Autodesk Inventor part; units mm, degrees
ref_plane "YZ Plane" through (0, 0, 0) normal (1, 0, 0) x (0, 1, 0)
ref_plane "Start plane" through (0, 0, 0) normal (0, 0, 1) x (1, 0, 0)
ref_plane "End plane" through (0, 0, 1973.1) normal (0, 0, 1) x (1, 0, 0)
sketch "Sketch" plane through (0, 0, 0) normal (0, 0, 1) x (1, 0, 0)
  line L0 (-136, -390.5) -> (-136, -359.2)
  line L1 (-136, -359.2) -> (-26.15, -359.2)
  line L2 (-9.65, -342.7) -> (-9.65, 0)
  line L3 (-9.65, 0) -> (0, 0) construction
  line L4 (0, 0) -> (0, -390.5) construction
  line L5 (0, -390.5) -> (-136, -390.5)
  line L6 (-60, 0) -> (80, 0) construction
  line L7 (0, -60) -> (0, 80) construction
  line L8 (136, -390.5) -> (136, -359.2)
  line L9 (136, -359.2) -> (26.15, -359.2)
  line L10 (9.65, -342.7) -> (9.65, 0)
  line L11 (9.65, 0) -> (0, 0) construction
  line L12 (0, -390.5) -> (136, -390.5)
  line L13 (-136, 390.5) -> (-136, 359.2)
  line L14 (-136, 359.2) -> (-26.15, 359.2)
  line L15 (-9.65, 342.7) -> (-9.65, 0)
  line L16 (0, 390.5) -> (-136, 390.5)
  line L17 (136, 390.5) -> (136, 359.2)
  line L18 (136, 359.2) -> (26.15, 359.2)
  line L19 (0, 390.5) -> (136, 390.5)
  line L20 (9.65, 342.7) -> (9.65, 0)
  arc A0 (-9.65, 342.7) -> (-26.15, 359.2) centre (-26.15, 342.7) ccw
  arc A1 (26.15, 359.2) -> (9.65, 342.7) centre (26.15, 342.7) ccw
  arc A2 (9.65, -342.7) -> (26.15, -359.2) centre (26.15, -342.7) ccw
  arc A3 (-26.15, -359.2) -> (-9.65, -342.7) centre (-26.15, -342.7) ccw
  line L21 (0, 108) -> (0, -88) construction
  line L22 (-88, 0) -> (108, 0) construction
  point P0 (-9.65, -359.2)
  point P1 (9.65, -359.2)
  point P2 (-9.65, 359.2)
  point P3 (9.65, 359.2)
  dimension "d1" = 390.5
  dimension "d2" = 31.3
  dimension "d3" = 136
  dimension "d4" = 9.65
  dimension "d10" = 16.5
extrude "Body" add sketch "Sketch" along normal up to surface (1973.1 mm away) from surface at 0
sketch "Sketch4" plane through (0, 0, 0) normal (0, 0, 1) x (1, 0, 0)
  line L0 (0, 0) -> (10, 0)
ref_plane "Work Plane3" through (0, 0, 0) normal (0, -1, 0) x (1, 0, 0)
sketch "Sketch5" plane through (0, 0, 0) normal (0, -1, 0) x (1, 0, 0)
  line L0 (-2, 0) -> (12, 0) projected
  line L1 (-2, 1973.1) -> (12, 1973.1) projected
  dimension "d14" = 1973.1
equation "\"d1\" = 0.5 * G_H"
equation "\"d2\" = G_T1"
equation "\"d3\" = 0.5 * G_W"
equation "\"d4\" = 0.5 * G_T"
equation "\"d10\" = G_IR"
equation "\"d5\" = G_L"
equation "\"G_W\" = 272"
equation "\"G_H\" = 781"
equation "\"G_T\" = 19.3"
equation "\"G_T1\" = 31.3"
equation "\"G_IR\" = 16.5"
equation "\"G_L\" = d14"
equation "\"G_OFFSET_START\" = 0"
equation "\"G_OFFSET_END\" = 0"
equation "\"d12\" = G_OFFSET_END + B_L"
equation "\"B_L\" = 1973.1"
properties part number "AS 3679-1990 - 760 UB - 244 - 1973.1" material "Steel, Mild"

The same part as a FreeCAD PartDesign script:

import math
import FreeCAD as App
import Part
import Sketcher
from FreeCAD import Vector
Q = App.Units.Quantity

doc = App.newDocument("Part")
body = doc.addObject("PartDesign::Body", "Body")

# Sketch on XY plane
sketch1 = doc.addObject("Sketcher::SketchObject", "Sketch")
body.addObject(sketch1)
sketch1.AttachmentSupport = (doc.XY_Plane, [""])
sketch1.MapMode = "FlatFace"
sketch1.addGeometry([
    Part.LineSegment(Vector(-136, -359.2, 0), Vector(-136, -390.5, 0)),  # 0
    Part.LineSegment(Vector(-136, -390.5, 0), Vector(136, -390.5, 0)),  # 1
    Part.LineSegment(Vector(136, -390.5, 0), Vector(136, -359.2, 0)),  # 2
    Part.LineSegment(Vector(136, -359.2, 0), Vector(26.15, -359.2, 0)),  # 3
    Part.ArcOfCircle(Part.Circle(Vector(26.15, -342.7, 0), Vector(0, 0, 1), 16.5), math.radians(180), math.radians(270)),  # 4
    Part.LineSegment(Vector(9.65, -342.7, 0), Vector(9.65, 342.7, 0)),  # 5
    Part.ArcOfCircle(Part.Circle(Vector(26.15, 342.7, 0), Vector(0, 0, 1), 16.5), math.radians(90), math.radians(180)),  # 6
    Part.LineSegment(Vector(26.15, 359.2, 0), Vector(136, 359.2, 0)),  # 7
    Part.LineSegment(Vector(136, 359.2, 0), Vector(136, 390.5, 0)),  # 8
    Part.LineSegment(Vector(136, 390.5, 0), Vector(-136, 390.5, 0)),  # 9
    Part.LineSegment(Vector(-136, 390.5, 0), Vector(-136, 359.2, 0)),  # 10
    Part.LineSegment(Vector(-136, 359.2, 0), Vector(-26.15, 359.2, 0)),  # 11
    Part.ArcOfCircle(Part.Circle(Vector(-26.15, 342.7, 0), Vector(0, 0, 1), 16.5), math.radians(0), math.radians(90)),  # 12
    Part.LineSegment(Vector(-9.65, 342.7, 0), Vector(-9.65, -342.7, 0)),  # 13
    Part.ArcOfCircle(Part.Circle(Vector(-26.15, -342.7, 0), Vector(0, 0, 1), 16.5), math.radians(-90), math.radians(0)),  # 14
    Part.LineSegment(Vector(-26.15, -359.2, 0), Vector(-136, -359.2, 0)),  # 15
], False)
sketch1.addConstraint([
    Sketcher.Constraint("Coincident", 0, 2, 1, 1),
    Sketcher.Constraint("Coincident", 1, 2, 2, 1),
    Sketcher.Constraint("Coincident", 2, 2, 3, 1),
    Sketcher.Constraint("Tangent", 3, 2, 4, 2),
    Sketcher.Constraint("Tangent", 4, 1, 5, 1),
    Sketcher.Constraint("Tangent", 5, 2, 6, 2),
    Sketcher.Constraint("Tangent", 6, 1, 7, 1),
    Sketcher.Constraint("Coincident", 7, 2, 8, 1),
    Sketcher.Constraint("Coincident", 8, 2, 9, 1),
    Sketcher.Constraint("Coincident", 9, 2, 10, 1),
    Sketcher.Constraint("Coincident", 10, 2, 11, 1),
    Sketcher.Constraint("Tangent", 11, 2, 12, 2),
    Sketcher.Constraint("Tangent", 12, 1, 13, 1),
    Sketcher.Constraint("Tangent", 13, 2, 14, 2),
    Sketcher.Constraint("Tangent", 14, 1, 15, 1),
    Sketcher.Constraint("Coincident", 15, 2, 0, 1),
    Sketcher.Constraint("Vertical", 0),
    Sketcher.Constraint("Horizontal", 1),
    Sketcher.Constraint("Vertical", 2),
    Sketcher.Constraint("Horizontal", 3),
    Sketcher.Constraint("Vertical", 5),
    Sketcher.Constraint("Horizontal", 7),
    Sketcher.Constraint("Vertical", 8),
    Sketcher.Constraint("Horizontal", 9),
    Sketcher.Constraint("Vertical", 10),
    Sketcher.Constraint("Horizontal", 11),
    Sketcher.Constraint("Vertical", 13),
    Sketcher.Constraint("Horizontal", 15),
    Sketcher.Constraint("Equal", 4, 6),
    Sketcher.Constraint("Equal", 6, 12),
    Sketcher.Constraint("Equal", 12, 14),
    Sketcher.Constraint("Symmetric", 4, 3, 12, 3, -1, 1),
    Sketcher.Constraint("Symmetric", 0, 2, 8, 2, -1, 1),
    Sketcher.Constraint("Symmetric", 7, 2, 10, 2, -2),
    Sketcher.Constraint("Symmetric", 2, 2, 15, 2, -2),
    Sketcher.Constraint("Radius", 4, Q("16.5 mm")),
    Sketcher.Constraint("DistanceY", 0, 2, 0, 1, Q("31.3 mm")),
    Sketcher.Constraint("DistanceX", 0, 2, -1, 1, Q("136 mm")),
    Sketcher.Constraint("DistanceY", 0, 2, -1, 1, Q("390.5 mm")),
    Sketcher.Constraint("DistanceX", -1, 1, 4, 1, Q("9.65 mm")),
])
pad1 = doc.addObject("PartDesign::Pad", "Pad")
body.addObject(pad1)
pad1.Profile = sketch1
pad1.Length = 1973.1

doc.recompute()
